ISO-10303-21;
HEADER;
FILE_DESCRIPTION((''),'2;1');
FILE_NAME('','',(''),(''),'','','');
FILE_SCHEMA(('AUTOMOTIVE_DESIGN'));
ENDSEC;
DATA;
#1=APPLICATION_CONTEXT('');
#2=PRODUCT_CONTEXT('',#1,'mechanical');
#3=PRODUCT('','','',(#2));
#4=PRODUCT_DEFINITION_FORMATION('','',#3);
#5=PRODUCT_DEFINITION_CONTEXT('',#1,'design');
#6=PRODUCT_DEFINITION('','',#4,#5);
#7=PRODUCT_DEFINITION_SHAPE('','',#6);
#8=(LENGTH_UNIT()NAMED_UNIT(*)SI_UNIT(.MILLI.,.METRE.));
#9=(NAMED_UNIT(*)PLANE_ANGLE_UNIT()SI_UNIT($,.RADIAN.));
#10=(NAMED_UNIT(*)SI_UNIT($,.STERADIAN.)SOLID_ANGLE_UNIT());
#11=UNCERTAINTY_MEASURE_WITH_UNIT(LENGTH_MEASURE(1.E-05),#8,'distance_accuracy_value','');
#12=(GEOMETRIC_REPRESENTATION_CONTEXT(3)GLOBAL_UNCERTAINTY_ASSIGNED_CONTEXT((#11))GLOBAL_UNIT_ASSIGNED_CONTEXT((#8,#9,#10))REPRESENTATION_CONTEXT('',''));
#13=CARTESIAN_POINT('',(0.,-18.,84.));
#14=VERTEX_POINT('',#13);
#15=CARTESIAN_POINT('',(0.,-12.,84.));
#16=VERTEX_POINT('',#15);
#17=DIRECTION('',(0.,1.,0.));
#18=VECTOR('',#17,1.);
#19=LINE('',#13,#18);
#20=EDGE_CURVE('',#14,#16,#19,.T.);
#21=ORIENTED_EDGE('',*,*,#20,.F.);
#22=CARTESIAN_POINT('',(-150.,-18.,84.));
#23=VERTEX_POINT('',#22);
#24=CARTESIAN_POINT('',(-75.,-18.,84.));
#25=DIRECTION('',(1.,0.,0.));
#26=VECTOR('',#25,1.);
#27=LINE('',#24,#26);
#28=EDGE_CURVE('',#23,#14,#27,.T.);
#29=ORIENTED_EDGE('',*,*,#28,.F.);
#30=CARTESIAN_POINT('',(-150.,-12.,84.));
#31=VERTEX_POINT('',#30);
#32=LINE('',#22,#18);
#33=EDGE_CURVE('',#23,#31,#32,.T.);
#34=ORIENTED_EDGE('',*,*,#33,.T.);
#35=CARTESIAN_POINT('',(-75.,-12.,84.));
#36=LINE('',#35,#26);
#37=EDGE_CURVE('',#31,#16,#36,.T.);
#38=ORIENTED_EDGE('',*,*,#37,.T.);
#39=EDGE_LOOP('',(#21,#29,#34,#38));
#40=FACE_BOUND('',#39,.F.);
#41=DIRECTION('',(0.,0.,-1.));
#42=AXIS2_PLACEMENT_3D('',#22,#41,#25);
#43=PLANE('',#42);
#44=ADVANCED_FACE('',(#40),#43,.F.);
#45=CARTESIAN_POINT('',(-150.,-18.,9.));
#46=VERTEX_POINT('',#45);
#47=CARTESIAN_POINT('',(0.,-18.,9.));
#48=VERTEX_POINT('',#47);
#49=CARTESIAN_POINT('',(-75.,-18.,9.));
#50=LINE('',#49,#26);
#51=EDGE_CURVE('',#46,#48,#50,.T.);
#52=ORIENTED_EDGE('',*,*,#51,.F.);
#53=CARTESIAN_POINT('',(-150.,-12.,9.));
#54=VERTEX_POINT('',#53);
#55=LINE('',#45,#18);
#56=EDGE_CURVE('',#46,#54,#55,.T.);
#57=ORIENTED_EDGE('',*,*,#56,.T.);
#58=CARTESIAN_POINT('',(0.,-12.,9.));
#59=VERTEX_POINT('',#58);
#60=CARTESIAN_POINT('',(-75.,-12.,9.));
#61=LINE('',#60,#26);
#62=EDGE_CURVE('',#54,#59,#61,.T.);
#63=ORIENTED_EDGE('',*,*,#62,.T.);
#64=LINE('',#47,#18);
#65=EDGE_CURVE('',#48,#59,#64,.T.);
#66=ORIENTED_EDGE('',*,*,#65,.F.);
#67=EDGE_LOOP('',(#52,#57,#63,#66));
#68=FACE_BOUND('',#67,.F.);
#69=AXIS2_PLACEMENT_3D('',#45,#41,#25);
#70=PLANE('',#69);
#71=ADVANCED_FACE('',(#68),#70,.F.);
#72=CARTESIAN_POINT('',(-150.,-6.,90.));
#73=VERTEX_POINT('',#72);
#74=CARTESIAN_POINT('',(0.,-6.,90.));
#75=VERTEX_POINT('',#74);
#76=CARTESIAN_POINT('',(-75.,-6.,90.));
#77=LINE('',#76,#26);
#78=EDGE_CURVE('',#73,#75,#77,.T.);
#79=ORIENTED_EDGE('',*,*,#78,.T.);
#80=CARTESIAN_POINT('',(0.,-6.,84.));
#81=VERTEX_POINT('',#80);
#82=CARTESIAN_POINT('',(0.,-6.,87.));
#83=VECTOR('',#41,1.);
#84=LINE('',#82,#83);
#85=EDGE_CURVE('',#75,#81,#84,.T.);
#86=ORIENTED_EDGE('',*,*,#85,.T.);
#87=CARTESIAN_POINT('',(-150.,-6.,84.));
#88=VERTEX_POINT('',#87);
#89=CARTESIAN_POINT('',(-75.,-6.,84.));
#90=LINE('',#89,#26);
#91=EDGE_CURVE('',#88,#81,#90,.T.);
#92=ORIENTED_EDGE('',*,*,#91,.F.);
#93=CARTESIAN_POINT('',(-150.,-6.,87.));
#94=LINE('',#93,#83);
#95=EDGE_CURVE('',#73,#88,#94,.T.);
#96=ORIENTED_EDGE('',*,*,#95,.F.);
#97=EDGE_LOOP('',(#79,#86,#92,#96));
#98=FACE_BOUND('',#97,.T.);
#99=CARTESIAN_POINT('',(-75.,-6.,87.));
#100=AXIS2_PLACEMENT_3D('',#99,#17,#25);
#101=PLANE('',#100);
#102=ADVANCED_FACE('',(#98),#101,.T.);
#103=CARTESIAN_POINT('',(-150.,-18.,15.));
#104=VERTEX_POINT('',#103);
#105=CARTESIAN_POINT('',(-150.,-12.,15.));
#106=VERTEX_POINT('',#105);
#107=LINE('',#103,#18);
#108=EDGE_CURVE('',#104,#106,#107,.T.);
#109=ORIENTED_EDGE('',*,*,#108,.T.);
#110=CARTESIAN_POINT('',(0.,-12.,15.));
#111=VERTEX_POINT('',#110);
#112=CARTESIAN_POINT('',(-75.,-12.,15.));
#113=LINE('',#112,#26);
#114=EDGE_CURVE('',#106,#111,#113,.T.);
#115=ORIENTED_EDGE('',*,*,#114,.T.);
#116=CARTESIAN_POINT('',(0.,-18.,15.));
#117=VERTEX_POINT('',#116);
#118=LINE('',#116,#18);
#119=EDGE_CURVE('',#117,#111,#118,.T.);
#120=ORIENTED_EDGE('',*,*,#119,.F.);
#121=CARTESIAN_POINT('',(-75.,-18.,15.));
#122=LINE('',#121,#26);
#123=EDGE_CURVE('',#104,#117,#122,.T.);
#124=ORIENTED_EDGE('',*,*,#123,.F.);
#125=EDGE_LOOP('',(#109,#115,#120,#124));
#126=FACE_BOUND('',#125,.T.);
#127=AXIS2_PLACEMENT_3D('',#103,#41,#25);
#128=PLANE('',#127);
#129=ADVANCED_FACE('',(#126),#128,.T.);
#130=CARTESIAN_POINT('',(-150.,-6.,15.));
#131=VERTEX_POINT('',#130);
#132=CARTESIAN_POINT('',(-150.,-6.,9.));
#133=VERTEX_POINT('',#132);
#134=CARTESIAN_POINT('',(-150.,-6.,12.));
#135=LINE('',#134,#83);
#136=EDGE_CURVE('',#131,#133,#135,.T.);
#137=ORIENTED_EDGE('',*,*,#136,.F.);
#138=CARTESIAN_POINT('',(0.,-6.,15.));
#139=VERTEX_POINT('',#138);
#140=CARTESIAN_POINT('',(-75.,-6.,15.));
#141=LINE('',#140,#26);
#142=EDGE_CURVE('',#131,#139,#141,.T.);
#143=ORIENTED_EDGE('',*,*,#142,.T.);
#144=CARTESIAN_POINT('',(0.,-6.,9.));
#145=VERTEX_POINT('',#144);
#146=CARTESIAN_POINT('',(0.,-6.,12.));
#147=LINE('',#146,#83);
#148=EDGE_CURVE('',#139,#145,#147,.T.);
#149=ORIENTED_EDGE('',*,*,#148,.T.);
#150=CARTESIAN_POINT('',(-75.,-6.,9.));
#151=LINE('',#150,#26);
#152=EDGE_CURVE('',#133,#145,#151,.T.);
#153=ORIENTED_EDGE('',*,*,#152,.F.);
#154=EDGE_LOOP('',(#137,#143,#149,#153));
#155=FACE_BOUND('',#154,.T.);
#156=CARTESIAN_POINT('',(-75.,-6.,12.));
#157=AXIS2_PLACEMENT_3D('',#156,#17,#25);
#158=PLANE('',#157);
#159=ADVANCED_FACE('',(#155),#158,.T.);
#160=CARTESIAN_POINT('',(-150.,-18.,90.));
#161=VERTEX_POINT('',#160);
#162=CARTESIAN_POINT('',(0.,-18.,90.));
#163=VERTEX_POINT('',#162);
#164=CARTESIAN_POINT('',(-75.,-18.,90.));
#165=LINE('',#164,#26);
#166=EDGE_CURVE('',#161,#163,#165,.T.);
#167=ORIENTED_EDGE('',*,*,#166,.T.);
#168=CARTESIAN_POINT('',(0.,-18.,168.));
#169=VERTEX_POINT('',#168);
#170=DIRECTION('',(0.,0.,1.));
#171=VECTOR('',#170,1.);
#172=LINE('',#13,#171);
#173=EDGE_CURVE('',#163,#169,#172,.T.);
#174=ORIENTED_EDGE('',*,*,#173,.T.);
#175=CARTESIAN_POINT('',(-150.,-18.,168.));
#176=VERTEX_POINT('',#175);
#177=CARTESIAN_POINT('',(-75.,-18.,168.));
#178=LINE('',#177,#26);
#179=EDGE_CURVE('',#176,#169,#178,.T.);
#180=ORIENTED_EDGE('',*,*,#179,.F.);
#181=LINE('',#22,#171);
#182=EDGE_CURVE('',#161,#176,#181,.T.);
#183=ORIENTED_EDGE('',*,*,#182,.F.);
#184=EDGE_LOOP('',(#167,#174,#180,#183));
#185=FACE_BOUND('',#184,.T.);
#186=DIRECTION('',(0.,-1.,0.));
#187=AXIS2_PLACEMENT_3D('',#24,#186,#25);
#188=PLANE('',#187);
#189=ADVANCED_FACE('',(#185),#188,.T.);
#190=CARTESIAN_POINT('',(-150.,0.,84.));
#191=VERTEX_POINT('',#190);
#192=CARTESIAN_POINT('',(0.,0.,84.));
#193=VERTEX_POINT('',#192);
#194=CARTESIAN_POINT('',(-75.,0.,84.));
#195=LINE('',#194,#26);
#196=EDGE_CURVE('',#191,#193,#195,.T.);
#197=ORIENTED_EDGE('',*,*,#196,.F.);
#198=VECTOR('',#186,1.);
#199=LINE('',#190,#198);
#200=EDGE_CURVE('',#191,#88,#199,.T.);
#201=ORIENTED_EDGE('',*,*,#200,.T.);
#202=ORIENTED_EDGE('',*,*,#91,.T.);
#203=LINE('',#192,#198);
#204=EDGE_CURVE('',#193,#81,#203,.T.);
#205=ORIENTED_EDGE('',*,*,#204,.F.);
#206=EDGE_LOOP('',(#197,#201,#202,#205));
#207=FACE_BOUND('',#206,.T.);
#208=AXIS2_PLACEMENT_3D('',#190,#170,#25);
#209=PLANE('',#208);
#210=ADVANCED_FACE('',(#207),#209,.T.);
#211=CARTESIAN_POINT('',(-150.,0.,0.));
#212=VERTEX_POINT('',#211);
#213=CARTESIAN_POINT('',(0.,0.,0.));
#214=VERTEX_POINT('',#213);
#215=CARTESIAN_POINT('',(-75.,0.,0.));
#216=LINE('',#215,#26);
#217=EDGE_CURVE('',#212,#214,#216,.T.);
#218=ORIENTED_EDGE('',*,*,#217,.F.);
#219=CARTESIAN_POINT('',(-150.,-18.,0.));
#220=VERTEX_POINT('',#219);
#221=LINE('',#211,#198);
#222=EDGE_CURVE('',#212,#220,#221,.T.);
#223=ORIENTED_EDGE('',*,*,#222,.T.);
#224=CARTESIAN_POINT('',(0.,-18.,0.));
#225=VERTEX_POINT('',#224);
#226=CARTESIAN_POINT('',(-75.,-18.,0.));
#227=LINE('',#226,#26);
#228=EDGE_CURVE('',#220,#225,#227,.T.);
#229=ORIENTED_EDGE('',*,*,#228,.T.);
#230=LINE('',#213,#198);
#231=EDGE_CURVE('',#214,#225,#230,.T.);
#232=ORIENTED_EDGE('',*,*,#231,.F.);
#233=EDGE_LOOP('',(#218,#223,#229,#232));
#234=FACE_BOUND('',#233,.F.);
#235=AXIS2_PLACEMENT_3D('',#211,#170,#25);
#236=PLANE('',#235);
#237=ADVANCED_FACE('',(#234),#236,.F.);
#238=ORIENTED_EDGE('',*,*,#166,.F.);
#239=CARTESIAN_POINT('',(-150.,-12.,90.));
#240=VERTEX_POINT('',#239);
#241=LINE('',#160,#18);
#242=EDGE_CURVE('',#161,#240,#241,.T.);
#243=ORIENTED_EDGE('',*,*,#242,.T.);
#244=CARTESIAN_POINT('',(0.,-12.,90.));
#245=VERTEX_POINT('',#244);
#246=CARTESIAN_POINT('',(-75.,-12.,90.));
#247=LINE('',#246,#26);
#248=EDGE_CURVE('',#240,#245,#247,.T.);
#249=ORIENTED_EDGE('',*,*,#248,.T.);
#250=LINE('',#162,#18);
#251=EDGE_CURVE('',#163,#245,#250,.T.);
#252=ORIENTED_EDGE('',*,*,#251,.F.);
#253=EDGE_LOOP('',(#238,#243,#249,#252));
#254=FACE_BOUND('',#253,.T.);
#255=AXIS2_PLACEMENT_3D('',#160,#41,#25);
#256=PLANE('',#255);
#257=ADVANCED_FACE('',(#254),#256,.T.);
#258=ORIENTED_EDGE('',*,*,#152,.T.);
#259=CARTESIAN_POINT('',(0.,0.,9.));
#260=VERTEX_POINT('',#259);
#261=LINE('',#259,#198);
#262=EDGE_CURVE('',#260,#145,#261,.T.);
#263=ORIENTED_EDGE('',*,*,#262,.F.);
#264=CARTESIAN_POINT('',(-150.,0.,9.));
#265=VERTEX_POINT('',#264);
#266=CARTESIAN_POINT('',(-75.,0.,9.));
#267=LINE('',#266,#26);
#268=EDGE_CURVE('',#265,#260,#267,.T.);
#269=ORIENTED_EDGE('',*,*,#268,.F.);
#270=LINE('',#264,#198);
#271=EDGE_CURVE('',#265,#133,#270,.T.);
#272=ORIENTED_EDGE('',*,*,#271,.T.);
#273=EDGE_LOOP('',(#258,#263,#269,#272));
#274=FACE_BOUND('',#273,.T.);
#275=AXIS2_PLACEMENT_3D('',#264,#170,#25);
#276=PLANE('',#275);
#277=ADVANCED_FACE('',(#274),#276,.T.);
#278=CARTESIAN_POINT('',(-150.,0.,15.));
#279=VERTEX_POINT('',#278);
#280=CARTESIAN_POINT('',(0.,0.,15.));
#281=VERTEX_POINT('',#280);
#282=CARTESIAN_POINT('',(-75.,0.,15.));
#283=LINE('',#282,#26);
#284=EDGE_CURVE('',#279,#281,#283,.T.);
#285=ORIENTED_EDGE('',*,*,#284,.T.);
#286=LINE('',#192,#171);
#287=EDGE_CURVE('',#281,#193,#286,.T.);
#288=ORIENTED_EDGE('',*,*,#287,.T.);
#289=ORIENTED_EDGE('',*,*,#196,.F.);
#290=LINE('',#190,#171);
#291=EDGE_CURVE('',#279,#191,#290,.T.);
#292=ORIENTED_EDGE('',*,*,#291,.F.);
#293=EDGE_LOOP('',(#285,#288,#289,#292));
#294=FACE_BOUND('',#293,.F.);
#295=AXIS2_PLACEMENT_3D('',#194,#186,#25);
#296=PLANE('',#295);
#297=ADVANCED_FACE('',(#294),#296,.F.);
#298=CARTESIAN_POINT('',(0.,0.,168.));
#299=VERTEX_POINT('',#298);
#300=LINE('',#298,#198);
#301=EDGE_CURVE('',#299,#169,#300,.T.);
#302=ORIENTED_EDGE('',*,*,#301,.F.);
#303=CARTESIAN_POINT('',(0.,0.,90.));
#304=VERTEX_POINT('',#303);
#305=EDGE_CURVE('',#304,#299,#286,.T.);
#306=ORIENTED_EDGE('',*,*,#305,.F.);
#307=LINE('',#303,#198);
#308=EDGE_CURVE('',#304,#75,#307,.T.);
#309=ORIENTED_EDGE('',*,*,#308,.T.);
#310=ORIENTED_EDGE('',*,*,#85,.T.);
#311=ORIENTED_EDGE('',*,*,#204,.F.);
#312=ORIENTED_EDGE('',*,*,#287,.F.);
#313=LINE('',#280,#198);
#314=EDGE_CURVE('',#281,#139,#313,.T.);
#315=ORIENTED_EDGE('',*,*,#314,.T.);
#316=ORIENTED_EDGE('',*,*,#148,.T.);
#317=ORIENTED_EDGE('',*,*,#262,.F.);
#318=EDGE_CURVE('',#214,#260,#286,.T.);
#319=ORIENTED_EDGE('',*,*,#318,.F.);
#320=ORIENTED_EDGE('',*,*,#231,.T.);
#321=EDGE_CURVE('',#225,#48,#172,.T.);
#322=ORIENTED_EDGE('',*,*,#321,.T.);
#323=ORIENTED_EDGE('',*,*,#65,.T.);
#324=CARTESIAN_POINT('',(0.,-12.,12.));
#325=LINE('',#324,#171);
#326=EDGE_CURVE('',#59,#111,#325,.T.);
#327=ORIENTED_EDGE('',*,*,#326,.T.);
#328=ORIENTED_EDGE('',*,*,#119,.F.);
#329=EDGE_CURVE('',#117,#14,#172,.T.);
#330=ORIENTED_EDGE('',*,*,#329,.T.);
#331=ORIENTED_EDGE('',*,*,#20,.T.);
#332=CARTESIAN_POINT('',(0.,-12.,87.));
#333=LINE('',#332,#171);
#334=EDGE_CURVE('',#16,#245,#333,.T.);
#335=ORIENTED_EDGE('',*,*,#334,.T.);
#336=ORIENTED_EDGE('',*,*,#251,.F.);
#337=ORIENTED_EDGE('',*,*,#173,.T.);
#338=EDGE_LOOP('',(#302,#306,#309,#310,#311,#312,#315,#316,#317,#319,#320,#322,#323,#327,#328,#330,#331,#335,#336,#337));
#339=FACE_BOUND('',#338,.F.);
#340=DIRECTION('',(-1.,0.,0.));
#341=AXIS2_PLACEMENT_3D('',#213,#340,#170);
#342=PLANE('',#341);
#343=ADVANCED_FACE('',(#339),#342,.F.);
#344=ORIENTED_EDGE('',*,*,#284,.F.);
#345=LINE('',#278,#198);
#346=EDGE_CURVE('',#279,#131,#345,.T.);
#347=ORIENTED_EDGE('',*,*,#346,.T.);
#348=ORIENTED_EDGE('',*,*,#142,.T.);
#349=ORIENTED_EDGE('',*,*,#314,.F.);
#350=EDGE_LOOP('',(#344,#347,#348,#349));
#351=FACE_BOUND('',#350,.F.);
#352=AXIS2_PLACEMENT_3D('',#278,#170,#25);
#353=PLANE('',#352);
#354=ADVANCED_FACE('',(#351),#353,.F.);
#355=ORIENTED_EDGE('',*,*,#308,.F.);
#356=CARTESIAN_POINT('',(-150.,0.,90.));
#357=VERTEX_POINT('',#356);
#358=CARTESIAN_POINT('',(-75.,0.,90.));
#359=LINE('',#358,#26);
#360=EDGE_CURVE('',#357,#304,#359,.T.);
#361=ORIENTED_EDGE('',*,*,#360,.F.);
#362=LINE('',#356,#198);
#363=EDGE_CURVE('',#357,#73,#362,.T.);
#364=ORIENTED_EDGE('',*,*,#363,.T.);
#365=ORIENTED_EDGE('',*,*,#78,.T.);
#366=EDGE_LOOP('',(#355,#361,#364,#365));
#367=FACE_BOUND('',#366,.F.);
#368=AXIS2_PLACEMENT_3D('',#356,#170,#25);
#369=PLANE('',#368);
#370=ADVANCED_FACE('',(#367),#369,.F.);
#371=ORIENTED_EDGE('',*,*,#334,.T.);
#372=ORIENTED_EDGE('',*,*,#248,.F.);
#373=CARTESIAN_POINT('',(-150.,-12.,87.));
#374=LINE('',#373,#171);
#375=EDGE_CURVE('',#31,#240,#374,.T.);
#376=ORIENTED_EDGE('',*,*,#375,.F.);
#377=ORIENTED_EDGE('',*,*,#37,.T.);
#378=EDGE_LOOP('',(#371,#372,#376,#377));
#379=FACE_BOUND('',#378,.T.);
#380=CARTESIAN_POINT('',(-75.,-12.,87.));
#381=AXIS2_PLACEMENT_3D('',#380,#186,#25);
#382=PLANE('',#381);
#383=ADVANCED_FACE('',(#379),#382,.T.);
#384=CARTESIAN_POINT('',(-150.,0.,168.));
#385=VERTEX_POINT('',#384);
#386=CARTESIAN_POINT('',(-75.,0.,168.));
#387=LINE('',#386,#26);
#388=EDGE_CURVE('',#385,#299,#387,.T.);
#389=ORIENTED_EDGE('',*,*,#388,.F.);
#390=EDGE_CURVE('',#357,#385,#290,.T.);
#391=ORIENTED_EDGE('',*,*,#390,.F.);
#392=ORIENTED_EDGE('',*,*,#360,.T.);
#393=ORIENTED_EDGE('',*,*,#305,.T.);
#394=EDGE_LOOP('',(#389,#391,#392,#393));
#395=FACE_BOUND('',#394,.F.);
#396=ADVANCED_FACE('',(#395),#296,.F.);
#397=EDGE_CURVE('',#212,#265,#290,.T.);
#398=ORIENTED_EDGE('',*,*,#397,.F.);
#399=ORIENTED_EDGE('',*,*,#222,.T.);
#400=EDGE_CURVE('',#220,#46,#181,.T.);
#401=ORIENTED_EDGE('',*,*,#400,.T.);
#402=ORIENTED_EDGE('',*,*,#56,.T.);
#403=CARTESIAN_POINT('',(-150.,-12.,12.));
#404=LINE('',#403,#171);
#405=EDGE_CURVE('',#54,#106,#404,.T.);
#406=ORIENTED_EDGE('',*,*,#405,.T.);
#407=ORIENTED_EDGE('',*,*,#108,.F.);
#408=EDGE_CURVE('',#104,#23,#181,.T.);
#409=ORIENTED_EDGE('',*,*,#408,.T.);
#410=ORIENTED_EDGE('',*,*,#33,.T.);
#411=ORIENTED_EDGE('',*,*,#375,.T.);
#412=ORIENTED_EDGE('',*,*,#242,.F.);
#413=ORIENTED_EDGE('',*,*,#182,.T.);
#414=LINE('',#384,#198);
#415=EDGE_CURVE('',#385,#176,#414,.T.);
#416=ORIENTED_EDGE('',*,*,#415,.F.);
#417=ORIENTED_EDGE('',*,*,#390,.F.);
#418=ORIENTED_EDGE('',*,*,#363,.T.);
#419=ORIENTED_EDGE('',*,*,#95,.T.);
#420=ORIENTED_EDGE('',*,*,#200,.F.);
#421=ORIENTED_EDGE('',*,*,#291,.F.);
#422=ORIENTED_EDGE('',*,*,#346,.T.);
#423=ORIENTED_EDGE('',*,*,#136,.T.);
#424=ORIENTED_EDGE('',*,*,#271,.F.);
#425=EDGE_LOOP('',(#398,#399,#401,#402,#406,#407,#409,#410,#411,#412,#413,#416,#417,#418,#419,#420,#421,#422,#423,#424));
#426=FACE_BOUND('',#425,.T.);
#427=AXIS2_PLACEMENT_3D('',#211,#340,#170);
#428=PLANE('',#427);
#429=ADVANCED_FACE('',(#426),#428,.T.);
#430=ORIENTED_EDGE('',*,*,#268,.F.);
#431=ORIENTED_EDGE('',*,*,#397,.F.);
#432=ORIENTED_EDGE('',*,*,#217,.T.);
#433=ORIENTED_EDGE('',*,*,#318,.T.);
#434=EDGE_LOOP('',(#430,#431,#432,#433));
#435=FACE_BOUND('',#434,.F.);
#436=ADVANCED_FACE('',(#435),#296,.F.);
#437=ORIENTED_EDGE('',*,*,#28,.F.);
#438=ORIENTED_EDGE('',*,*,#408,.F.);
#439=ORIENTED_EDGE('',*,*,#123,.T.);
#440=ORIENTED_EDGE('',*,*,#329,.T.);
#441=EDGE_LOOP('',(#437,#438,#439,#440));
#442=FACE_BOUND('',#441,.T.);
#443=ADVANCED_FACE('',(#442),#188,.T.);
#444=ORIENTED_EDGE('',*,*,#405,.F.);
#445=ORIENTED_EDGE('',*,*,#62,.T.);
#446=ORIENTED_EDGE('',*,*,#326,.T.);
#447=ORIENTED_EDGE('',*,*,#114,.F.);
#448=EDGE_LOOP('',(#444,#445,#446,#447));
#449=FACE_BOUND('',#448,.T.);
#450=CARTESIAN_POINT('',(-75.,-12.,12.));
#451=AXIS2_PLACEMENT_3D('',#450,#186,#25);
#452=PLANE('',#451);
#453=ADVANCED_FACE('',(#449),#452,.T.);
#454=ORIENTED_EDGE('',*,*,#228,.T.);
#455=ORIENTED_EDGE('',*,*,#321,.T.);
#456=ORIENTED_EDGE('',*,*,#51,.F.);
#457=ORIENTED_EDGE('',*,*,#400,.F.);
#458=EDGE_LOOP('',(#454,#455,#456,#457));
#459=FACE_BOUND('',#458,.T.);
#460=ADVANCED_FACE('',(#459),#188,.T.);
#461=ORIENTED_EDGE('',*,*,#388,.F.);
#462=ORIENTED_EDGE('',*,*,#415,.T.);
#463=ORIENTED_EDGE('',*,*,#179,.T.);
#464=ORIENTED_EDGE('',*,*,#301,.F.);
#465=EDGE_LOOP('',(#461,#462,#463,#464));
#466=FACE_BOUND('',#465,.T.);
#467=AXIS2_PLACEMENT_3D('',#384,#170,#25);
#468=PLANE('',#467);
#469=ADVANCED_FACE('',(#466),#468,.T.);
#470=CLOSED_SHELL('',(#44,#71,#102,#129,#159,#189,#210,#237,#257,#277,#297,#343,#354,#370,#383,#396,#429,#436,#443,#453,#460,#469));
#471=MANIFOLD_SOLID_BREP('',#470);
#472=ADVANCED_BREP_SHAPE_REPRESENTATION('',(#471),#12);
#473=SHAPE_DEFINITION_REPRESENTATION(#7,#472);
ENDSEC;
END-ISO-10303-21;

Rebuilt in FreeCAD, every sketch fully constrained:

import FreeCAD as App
import Part
import Sketcher
from FreeCAD import Vector
Q = App.Units.Quantity


def add_polygon(sketch, points):
    """Adds a closed chain of lines whose ends are joined by coincident constraints."""
    first, n = sketch.GeometryCount, len(points)
    for a, b in zip(points, points[1:] + points[:1]):
        sketch.addGeometry(Part.LineSegment(App.Vector(*a, 0), App.Vector(*b, 0)), False)
    for i in range(n):
        sketch.addConstraint(Sketcher.Constraint("Coincident", first + i, 2, first + (i + 1) % n, 1))

doc = App.newDocument("Part")
body = doc.addObject("PartDesign::Body", "Body")

# Sketch on XZ plane
sketch1 = body.newObject("Sketcher::SketchObject", "Sketch")
sketch1.AttachmentSupport = (doc.getObject("XZ_Plane"), [""])
sketch1.MapMode = "FlatFace"
add_polygon(sketch1, [(-150, 168), (-150, 0), (0, 0), (0, 168)])  # lines 0-3
sketch1.addConstraint(Sketcher.Constraint("Vertical", 0))
sketch1.addConstraint(Sketcher.Constraint("Horizontal", 1))
sketch1.addConstraint(Sketcher.Constraint("Vertical", 2))
sketch1.addConstraint(Sketcher.Constraint("Horizontal", 3))
sketch1.addConstraint(Sketcher.Constraint("Coincident", 1, 2, -1, 1))
sketch1.addConstraint(Sketcher.Constraint("DistanceX", 1, 1, 1, 2, Q("150 mm")))
sketch1.addConstraint(Sketcher.Constraint("DistanceY", 0, 2, 0, 1, Q("168 mm")))
pad1 = body.newObject("PartDesign::Pad", "Pad")
pad1.Profile = sketch1
pad1.Length = 18

# Sketch on XZ plane
sketch2 = body.newObject("Sketcher::SketchObject", "Sketch001")
sketch2.AttachmentSupport = (doc.getObject("XZ_Plane"), [""])
sketch2.MapMode = "FlatFace"
sketch2.AttachmentOffset = App.Placement(Vector(0, 0, 18), App.Rotation())
add_polygon(sketch2, [(-150, 15), (-150, 9), (0, 9), (0, 15)])  # lines 0-3
add_polygon(sketch2, [(-150, 90), (-150, 84), (0, 84), (0, 90)])  # lines 4-7
sketch2.addConstraint(Sketcher.Constraint("Vertical", 0))
sketch2.addConstraint(Sketcher.Constraint("Horizontal", 1))
sketch2.addConstraint(Sketcher.Constraint("Vertical", 2))
sketch2.addConstraint(Sketcher.Constraint("Horizontal", 3))
sketch2.addConstraint(Sketcher.Constraint("Vertical", 4))
sketch2.addConstraint(Sketcher.Constraint("Horizontal", 5))
sketch2.addConstraint(Sketcher.Constraint("Vertical", 6))
sketch2.addConstraint(Sketcher.Constraint("Horizontal", 7))
sketch2.addConstraint(Sketcher.Constraint("PointOnObject", 1, 2, -2))
sketch2.addConstraint(Sketcher.Constraint("PointOnObject", 5, 2, -2))
sketch2.addConstraint(Sketcher.Constraint("Vertical", 3, 2, 4, 2))
sketch2.addConstraint(Sketcher.Constraint("Equal", 2, 4))
sketch2.addConstraint(Sketcher.Constraint("DistanceX", 1, 1, 1, 2, Q("150 mm")))
sketch2.addConstraint(Sketcher.Constraint("DistanceY", 0, 2, 0, 1, Q("6 mm")))
sketch2.addConstraint(Sketcher.Constraint("DistanceY", -1, 1, 0, 2, Q("9 mm")))
sketch2.addConstraint(Sketcher.Constraint("DistanceY", -1, 1, 4, 2, Q("84 mm")))
pocket1 = body.newObject("PartDesign::Pocket", "Pocket")
pocket1.Profile = sketch2
pocket1.Length = 6

# Sketch on XZ plane
sketch3 = body.newObject("Sketcher::SketchObject", "Sketch002")
sketch3.AttachmentSupport = (doc.getObject("XZ_Plane"), [""])
sketch3.MapMode = "FlatFace"
add_polygon(sketch3, [(-150, 9), (-150, 15), (0, 15), (0, 9)])  # lines 0-3
add_polygon(sketch3, [(-150, 84), (-150, 90), (0, 90), (0, 84)])  # lines 4-7
sketch3.addConstraint(Sketcher.Constraint("Vertical", 0))
sketch3.addConstraint(Sketcher.Constraint("Horizontal", 1))
sketch3.addConstraint(Sketcher.Constraint("Vertical", 2))
sketch3.addConstraint(Sketcher.Constraint("Horizontal", 3))
sketch3.addConstraint(Sketcher.Constraint("Vertical", 4))
sketch3.addConstraint(Sketcher.Constraint("Horizontal", 5))
sketch3.addConstraint(Sketcher.Constraint("Vertical", 6))
sketch3.addConstraint(Sketcher.Constraint("Horizontal", 7))
sketch3.addConstraint(Sketcher.Constraint("PointOnObject", 1, 2, -2))
sketch3.addConstraint(Sketcher.Constraint("PointOnObject", 5, 2, -2))
sketch3.addConstraint(Sketcher.Constraint("Vertical", 3, 2, 4, 2))
sketch3.addConstraint(Sketcher.Constraint("Equal", 2, 4))
sketch3.addConstraint(Sketcher.Constraint("DistanceX", 1, 1, 1, 2, Q("150 mm")))
sketch3.addConstraint(Sketcher.Constraint("DistanceY", 0, 1, 0, 2, Q("6 mm")))
sketch3.addConstraint(Sketcher.Constraint("DistanceY", -1, 1, 0, 2, Q("15 mm")))
sketch3.addConstraint(Sketcher.Constraint("DistanceY", -1, 1, 4, 2, Q("90 mm")))
pocket2 = body.newObject("PartDesign::Pocket", "Pocket001")
pocket2.Profile = sketch3
pocket2.Length = 6
pocket2.Reversed = True

doc.recompute()
